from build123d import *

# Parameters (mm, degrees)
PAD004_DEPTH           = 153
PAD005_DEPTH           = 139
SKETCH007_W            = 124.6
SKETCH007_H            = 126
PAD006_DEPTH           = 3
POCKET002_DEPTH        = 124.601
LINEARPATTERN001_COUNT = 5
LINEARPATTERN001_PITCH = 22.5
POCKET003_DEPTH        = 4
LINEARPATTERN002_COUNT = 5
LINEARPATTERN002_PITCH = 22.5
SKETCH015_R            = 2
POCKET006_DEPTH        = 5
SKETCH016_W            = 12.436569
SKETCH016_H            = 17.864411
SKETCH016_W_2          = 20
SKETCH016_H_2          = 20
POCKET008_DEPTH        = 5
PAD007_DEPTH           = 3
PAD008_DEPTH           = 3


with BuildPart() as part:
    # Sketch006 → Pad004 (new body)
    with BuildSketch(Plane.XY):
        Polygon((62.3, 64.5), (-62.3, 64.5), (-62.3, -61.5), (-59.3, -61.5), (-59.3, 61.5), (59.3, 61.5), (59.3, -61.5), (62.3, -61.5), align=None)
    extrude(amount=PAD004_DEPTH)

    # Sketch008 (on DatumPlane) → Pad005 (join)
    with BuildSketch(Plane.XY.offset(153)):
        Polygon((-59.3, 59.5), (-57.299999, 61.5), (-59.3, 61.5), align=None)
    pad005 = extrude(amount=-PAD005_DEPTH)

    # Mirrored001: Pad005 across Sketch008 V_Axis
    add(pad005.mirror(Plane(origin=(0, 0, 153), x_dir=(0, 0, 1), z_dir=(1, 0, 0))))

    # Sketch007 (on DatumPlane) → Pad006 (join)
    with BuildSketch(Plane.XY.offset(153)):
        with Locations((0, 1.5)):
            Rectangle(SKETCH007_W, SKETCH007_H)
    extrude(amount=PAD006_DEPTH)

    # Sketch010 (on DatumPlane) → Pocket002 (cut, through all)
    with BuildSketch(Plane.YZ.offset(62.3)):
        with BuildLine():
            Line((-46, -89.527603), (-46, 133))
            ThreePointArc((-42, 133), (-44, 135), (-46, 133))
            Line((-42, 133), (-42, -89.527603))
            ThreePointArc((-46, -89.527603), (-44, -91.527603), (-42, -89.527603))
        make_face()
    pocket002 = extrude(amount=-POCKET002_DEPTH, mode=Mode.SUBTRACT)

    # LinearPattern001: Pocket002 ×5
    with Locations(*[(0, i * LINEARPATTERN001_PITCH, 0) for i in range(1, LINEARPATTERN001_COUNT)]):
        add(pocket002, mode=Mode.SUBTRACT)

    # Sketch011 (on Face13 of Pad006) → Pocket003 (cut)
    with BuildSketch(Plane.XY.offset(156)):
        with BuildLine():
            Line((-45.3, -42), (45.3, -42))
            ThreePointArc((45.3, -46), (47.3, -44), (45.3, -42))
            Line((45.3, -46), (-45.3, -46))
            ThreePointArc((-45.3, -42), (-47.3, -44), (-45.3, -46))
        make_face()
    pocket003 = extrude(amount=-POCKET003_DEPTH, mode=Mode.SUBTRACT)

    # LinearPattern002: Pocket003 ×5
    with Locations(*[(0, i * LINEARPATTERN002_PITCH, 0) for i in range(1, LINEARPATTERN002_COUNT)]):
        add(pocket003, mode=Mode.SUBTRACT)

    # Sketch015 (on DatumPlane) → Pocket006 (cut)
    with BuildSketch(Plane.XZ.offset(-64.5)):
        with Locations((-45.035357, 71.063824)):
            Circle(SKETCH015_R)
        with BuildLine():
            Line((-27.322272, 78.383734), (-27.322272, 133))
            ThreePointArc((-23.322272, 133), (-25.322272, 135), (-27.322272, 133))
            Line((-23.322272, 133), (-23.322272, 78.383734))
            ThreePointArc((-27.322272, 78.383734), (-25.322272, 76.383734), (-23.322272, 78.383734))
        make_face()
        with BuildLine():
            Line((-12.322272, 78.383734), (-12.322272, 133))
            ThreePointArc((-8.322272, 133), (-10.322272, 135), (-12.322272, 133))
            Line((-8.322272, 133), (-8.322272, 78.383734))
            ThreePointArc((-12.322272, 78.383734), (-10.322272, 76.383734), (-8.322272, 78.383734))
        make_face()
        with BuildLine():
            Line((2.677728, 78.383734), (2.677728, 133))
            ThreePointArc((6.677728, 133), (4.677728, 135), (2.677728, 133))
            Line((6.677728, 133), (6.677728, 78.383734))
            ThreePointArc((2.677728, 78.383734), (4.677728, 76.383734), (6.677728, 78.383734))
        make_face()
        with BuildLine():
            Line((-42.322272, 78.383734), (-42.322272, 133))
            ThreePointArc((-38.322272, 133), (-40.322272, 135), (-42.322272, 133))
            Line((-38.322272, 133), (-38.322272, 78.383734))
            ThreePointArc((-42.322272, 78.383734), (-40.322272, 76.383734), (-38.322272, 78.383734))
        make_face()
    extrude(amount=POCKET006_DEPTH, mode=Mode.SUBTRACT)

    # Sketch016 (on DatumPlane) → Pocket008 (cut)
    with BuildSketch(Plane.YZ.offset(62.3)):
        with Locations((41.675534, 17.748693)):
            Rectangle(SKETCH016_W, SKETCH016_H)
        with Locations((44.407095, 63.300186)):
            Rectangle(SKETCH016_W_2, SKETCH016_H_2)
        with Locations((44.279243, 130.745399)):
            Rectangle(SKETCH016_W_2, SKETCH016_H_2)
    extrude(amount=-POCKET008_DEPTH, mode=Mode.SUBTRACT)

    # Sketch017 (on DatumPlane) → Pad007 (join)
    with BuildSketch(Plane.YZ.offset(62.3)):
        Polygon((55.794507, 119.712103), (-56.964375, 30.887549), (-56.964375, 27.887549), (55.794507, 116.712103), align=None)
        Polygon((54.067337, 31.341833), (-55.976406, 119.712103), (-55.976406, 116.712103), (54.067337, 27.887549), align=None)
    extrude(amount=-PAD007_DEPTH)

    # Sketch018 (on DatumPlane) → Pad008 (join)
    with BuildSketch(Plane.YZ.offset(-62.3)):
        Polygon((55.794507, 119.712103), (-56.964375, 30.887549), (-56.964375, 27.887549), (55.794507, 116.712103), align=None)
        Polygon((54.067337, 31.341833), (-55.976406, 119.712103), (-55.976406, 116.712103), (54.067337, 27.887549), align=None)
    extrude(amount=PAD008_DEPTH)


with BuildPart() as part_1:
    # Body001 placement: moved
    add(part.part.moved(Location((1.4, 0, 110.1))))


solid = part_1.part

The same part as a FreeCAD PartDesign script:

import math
import FreeCAD as App
import Part
import Sketcher

V = App.Vector
Q = App.Units.Quantity

doc = App.newDocument("Part")
body = doc.addObject("PartDesign::Body", "Body")

sketch1 = doc.addObject("Sketcher::SketchObject", "Sketch")
body.addObject(sketch1)
sketch1.AttachmentSupport = (doc.XY_Plane, [""])
sketch1.MapMode = "FlatFace"
sketch1.addGeometry(Part.LineSegment(V(62.3, 64.5, 0), V(-62.3, 64.5, 0)), False)
sketch1.addGeometry(Part.LineSegment(V(-62.3, 64.5, 0), V(-62.3, -61.5, 0)), False)
sketch1.addGeometry(Part.LineSegment(V(-62.3, -61.5, 0), V(-59.3, -61.5, 0)), False)
sketch1.addGeometry(Part.LineSegment(V(-59.3, -61.5, 0), V(-59.3, 61.5, 0)), False)
sketch1.addGeometry(Part.LineSegment(V(-59.3, 61.5, 0), V(59.3, 61.5, 0)), False)
sketch1.addGeometry(Part.LineSegment(V(59.3, 61.5, 0), V(59.3, -61.5, 0)), False)
sketch1.addGeometry(Part.LineSegment(V(59.3, -61.5, 0), V(62.3, -61.5, 0)), False)
sketch1.addGeometry(Part.LineSegment(V(62.3, -61.5, 0), V(62.3, 64.5, 0)), False)
sketch1.addConstraint(Sketcher.Constraint("Coincident", 0, 2, 1, 1))
sketch1.addConstraint(Sketcher.Constraint("Coincident", 1, 2, 2, 1))
sketch1.addConstraint(Sketcher.Constraint("Coincident", 2, 2, 3, 1))
sketch1.addConstraint(Sketcher.Constraint("Coincident", 3, 2, 4, 1))
sketch1.addConstraint(Sketcher.Constraint("Coincident", 4, 2, 5, 1))
sketch1.addConstraint(Sketcher.Constraint("Coincident", 5, 2, 6, 1))
sketch1.addConstraint(Sketcher.Constraint("Coincident", 6, 2, 7, 1))
sketch1.addConstraint(Sketcher.Constraint("Coincident", 7, 2, 0, 1))
sketch1.addConstraint(Sketcher.Constraint("Horizontal", 0))
sketch1.addConstraint(Sketcher.Constraint("Vertical", 1))
sketch1.addConstraint(Sketcher.Constraint("Horizontal", 2))
sketch1.addConstraint(Sketcher.Constraint("Vertical", 3))
sketch1.addConstraint(Sketcher.Constraint("Horizontal", 4))
sketch1.addConstraint(Sketcher.Constraint("Vertical", 5))
sketch1.addConstraint(Sketcher.Constraint("Horizontal", 6))
sketch1.addConstraint(Sketcher.Constraint("Vertical", 7))
sketch1.addConstraint(Sketcher.Constraint("Symmetric", 2, 2, 4, 2, -1, 1))
sketch1.addConstraint(Sketcher.Constraint("Symmetric", 1, 2, 6, 2, -2))
sketch1.addConstraint(Sketcher.Constraint("DistanceX", 2, 1, 2, 2, Q("3 mm")))
sketch1.addConstraint(Sketcher.Constraint("DistanceY", 1, 2, 1, 1, Q("126 mm")))
sketch1.addConstraint(Sketcher.Constraint("DistanceY", 3, 1, 3, 2, Q("123 mm")))
sketch1.addConstraint(Sketcher.Constraint("DistanceX", 0, 2, 0, 1, Q("124.6 mm")))
pad1 = doc.addObject("PartDesign::Pad", "Pad")
body.addObject(pad1)
pad1.Profile = sketch1
pad1.Length = 153

sketch2 = doc.addObject("Sketcher::SketchObject", "Sketch001")
body.addObject(sketch2)
sketch2.AttachmentSupport = (doc.XY_Plane, [""])
sketch2.MapMode = "FlatFace"
sketch2.AttachmentOffset = App.Placement(V(0, 0, 153), App.Rotation())
sketch2.addGeometry(Part.LineSegment(V(-59.3, 59.5, 0), V(-57.299999, 61.5, 0)), False)
sketch2.addGeometry(Part.LineSegment(V(-57.299999, 61.5, 0), V(-59.3, 61.5, 0)), False)
sketch2.addGeometry(Part.LineSegment(V(-59.3, 61.5, 0), V(-59.3, 59.5, 0)), False)
sketch2.addConstraint(Sketcher.Constraint("Coincident", 0, 2, 1, 1))
sketch2.addConstraint(Sketcher.Constraint("Coincident", 1, 2, 2, 1))
sketch2.addConstraint(Sketcher.Constraint("Coincident", 2, 2, 0, 1))
sketch2.addConstraint(Sketcher.Constraint("Horizontal", 1))
sketch2.addConstraint(Sketcher.Constraint("Vertical", 2))
sketch2.addConstraint(Sketcher.Constraint("Equal", 1, 2))
sketch2.addConstraint(Sketcher.Constraint("DistanceX", 1, 2, 1, 1, Q("2.000001 mm")))
sketch2.addConstraint(Sketcher.Constraint("DistanceX", 0, 2, -1, 1, Q("57.299999 mm")))
sketch2.addConstraint(Sketcher.Constraint("DistanceY", -1, 1, 0, 2, Q("61.5 mm")))
pad2 = doc.addObject("PartDesign::Pad", "Pad001")
body.addObject(pad2)
pad2.Profile = sketch2
pad2.Length = 139
pad2.Reversed = True
doc.recompute()

mirrored = doc.addObject("PartDesign::Mirrored", "Mirrored")
body.addObject(mirrored)
mirrored.Originals = [pad2]
mirrored.MirrorPlane = (doc.YZ_Plane, [""])
body.Tip = mirrored

sketch3 = doc.addObject("Sketcher::SketchObject", "Sketch002")
body.addObject(sketch3)
sketch3.AttachmentSupport = (doc.XY_Plane, [""])
sketch3.MapMode = "FlatFace"
sketch3.AttachmentOffset = App.Placement(V(0, 0, 153), App.Rotation())
sketch3.addGeometry(Part.LineSegment(V(-62.3, 64.5, 0), V(-62.3, -61.5, 0)), False)
sketch3.addGeometry(Part.LineSegment(V(-62.3, -61.5, 0), V(62.3, -61.5, 0)), False)
sketch3.addGeometry(Part.LineSegment(V(62.3, -61.5, 0), V(62.3, 64.5, 0)), False)
sketch3.addGeometry(Part.LineSegment(V(62.3, 64.5, 0), V(-62.3, 64.5, 0)), False)
sketch3.addConstraint(Sketcher.Constraint("Coincident", 0, 2, 1, 1))
sketch3.addConstraint(Sketcher.Constraint("Coincident", 1, 2, 2, 1))
sketch3.addConstraint(Sketcher.Constraint("Coincident", 2, 2, 3, 1))
sketch3.addConstraint(Sketcher.Constraint("Coincident", 3, 2, 0, 1))
sketch3.addConstraint(Sketcher.Constraint("Vertical", 0))
sketch3.addConstraint(Sketcher.Constraint("Horizontal", 1))
sketch3.addConstraint(Sketcher.Constraint("Vertical", 2))
sketch3.addConstraint(Sketcher.Constraint("Horizontal", 3))
sketch3.addConstraint(Sketcher.Constraint("DistanceY", 0, 2, 0, 1, Q("126 mm")))
sketch3.addConstraint(Sketcher.Constraint("DistanceX", 1, 1, 1, 2, Q("124.6 mm")))
sketch3.addConstraint(Sketcher.Constraint("DistanceX", 0, 2, -1, 1, Q("62.3 mm")))
sketch3.addConstraint(Sketcher.Constraint("DistanceY", 0, 2, -1, 1, Q("61.5 mm")))
pad3 = doc.addObject("PartDesign::Pad", "Pad002")
body.addObject(pad3)
pad3.Profile = sketch3
pad3.Length = 3

sketch4 = doc.addObject("Sketcher::SketchObject", "Sketch003")
body.addObject(sketch4)
sketch4.AttachmentSupport = (doc.YZ_Plane, [""])
sketch4.MapMode = "FlatFace"
sketch4.AttachmentOffset = App.Placement(V(0, 0, 62.3), App.Rotation())
sketch4.addGeometry(Part.LineSegment(V(-46, 133, 0), V(-46, -89.527603, 0)), False)
sketch4.addGeometry(Part.ArcOfCircle(Part.Circle(V(-44, -89.527603, 0), V(0, 0, 1), 2), math.radians(180), math.radians(360)), False)
sketch4.addGeometry(Part.LineSegment(V(-42, -89.527603, 0), V(-42, 133, 0)), False)
sketch4.addGeometry(Part.ArcOfCircle(Part.Circle(V(-44, 133, 0), V(0, 0, 1), 2), math.radians(0), math.radians(180)), False)
sketch4.addConstraint(Sketcher.Constraint("Tangent", 0, 2, 1, 1))
sketch4.addConstraint(Sketcher.Constraint("Tangent", 1, 2, 2, 1))
sketch4.addConstraint(Sketcher.Constraint("Tangent", 2, 2, 3, 1))
sketch4.addConstraint(Sketcher.Constraint("Tangent", 3, 2, 0, 1))
sketch4.addConstraint(Sketcher.Constraint("Vertical", 0))
sketch4.addConstraint(Sketcher.Constraint("Vertical", 2))
sketch4.addConstraint(Sketcher.Constraint("Radius", 1, Q("2 mm")))
sketch4.addConstraint(Sketcher.Constraint("DistanceX", 1, 3, -1, 1, Q("44 mm")))
sketch4.addConstraint(Sketcher.Constraint("DistanceY", -1, 1, 3, 3, Q("133 mm")))
sketch4.addConstraint(Sketcher.Constraint("DistanceY", 0, 2, 0, 1, Q("222.527603 mm")))
pocket1 = doc.addObject("PartDesign::Pocket", "Pocket")
body.addObject(pocket1)
pocket1.Profile = sketch4
pocket1.Type = "ThroughAll"
doc.recompute()

linearpattern = doc.addObject("PartDesign::LinearPattern", "LinearPattern")
body.addObject(linearpattern)
linearpattern.Originals = [pocket1]
linearpattern.Direction = (doc.Y_Axis, [""])
linearpattern.Mode = "offset"
linearpattern.Offset = 22.5
linearpattern.Occurrences = 5
body.Tip = linearpattern

sketch5 = doc.addObject("Sketcher::SketchObject", "Sketch004")
body.addObject(sketch5)
sketch5.AttachmentSupport = (doc.XY_Plane, [""])
sketch5.MapMode = "FlatFace"
sketch5.AttachmentOffset = App.Placement(V(0, 0, 156), App.Rotation())
sketch5.addGeometry(Part.LineSegment(V(45.3, -42, 0), V(-45.3, -42, 0)), False)
sketch5.addGeometry(Part.ArcOfCircle(Part.Circle(V(-45.3, -44, 0), V(0, 0, 1), 2), math.radians(90), math.radians(270)), False)
sketch5.addGeometry(Part.LineSegment(V(-45.3, -46, 0), V(45.3, -46, 0)), False)
sketch5.addGeometry(Part.ArcOfCircle(Part.Circle(V(45.3, -44, 0), V(0, 0, 1), 2), math.radians(-90), math.radians(90)), False)
sketch5.addConstraint(Sketcher.Constraint("Tangent", 0, 2, 1, 1))
sketch5.addConstraint(Sketcher.Constraint("Tangent", 1, 2, 2, 1))
sketch5.addConstraint(Sketcher.Constraint("Tangent", 2, 2, 3, 1))
sketch5.addConstraint(Sketcher.Constraint("Tangent", 3, 2, 0, 1))
sketch5.addConstraint(Sketcher.Constraint("Horizontal", 0))
sketch5.addConstraint(Sketcher.Constraint("Horizontal", 2))
sketch5.addConstraint(Sketcher.Constraint("Radius", 1, Q("2 mm")))
sketch5.addConstraint(Sketcher.Constraint("DistanceX", 0, 2, 0, 1, Q("90.6 mm")))
sketch5.addConstraint(Sketcher.Constraint("DistanceY", 1, 3, -1, 1, Q("44 mm")))
sketch5.addConstraint(Sketcher.Constraint("DistanceX", 1, 3, -1, 1, Q("45.3 mm")))
pocket2 = doc.addObject("PartDesign::Pocket", "Pocket001")
body.addObject(pocket2)
pocket2.Profile = sketch5
pocket2.Length = 4
doc.recompute()

linearpattern2 = doc.addObject("PartDesign::LinearPattern", "LinearPattern001")
body.addObject(linearpattern2)
linearpattern2.Originals = [pocket2]
linearpattern2.Direction = (doc.Y_Axis, [""])
linearpattern2.Mode = "offset"
linearpattern2.Offset = 22.5
linearpattern2.Occurrences = 5
body.Tip = linearpattern2

sketch6 = doc.addObject("Sketcher::SketchObject", "Sketch005")
body.addObject(sketch6)
sketch6.AttachmentSupport = (doc.XZ_Plane, [""])
sketch6.MapMode = "FlatFace"
sketch6.AttachmentOffset = App.Placement(V(0, 0, -64.5), App.Rotation())
sketch6.addGeometry(Part.Circle(V(-45.035357, 71.063824, 0), V(0, 0, 1), 2), False)
sketch6.addGeometry(Part.LineSegment(V(-27.322272, 133, 0), V(-27.322272, 78.383734, 0)), False)
sketch6.addGeometry(Part.ArcOfCircle(Part.Circle(V(-25.322272, 78.383734, 0), V(0, 0, 1), 2), math.radians(180), math.radians(360)), False)
sketch6.addGeometry(Part.LineSegment(V(-23.322272, 78.383734, 0), V(-23.322272, 133, 0)), False)
sketch6.addGeometry(Part.ArcOfCircle(Part.Circle(V(-25.322272, 133, 0), V(0, 0, 1), 2), math.radians(0), math.radians(180)), False)
sketch6.addGeometry(Part.LineSegment(V(-12.322272, 133, 0), V(-12.322272, 78.383734, 0)), False)
sketch6.addGeometry(Part.ArcOfCircle(Part.Circle(V(-10.322272, 78.383734, 0), V(0, 0, 1), 2), math.radians(180), math.radians(360)), False)
sketch6.addGeometry(Part.LineSegment(V(-8.322272, 78.383734, 0), V(-8.322272, 133, 0)), False)
sketch6.addGeometry(Part.ArcOfCircle(Part.Circle(V(-10.322272, 133, 0), V(0, 0, 1), 2), math.radians(0), math.radians(180)), False)
sketch6.addGeometry(Part.LineSegment(V(2.677728, 133, 0), V(2.677728, 78.383734, 0)), False)
sketch6.addGeometry(Part.ArcOfCircle(Part.Circle(V(4.677728, 78.383734, 0), V(0, 0, 1), 2), math.radians(180), math.radians(360)), False)
sketch6.addGeometry(Part.LineSegment(V(6.677728, 78.383734, 0), V(6.677728, 133, 0)), False)
sketch6.addGeometry(Part.ArcOfCircle(Part.Circle(V(4.677728, 133, 0), V(0, 0, 1), 2), math.radians(0), math.radians(180)), False)
sketch6.addGeometry(Part.LineSegment(V(-42.322272, 133, 0), V(-42.322272, 78.383734, 0)), False)
sketch6.addGeometry(Part.ArcOfCircle(Part.Circle(V(-40.322272, 78.383734, 0), V(0, 0, 1), 2), math.radians(180), math.radians(360)), False)
sketch6.addGeometry(Part.LineSegment(V(-38.322272, 78.383734, 0), V(-38.322272, 133, 0)), False)
sketch6.addGeometry(Part.ArcOfCircle(Part.Circle(V(-40.322272, 133, 0), V(0, 0, 1), 2), math.radians(0), math.radians(180)), False)
sketch6.addConstraint(Sketcher.Constraint("Tangent", 1, 2, 2, 1))
sketch6.addConstraint(Sketcher.Constraint("Tangent", 2, 2, 3, 1))
sketch6.addConstraint(Sketcher.Constraint("Tangent", 3, 2, 4, 1))
sketch6.addConstraint(Sketcher.Constraint("Tangent", 4, 2, 1, 1))
sketch6.addConstraint(Sketcher.Constraint("Tangent", 5, 2, 6, 1))
sketch6.addConstraint(Sketcher.Constraint("Tangent", 6, 2, 7, 1))
sketch6.addConstraint(Sketcher.Constraint("Tangent", 7, 2, 8, 1))
sketch6.addConstraint(Sketcher.Constraint("Tangent", 8, 2, 5, 1))
sketch6.addConstraint(Sketcher.Constraint("Tangent", 9, 2, 10, 1))
sketch6.addConstraint(Sketcher.Constraint("Tangent", 10, 2, 11, 1))
sketch6.addConstraint(Sketcher.Constraint("Tangent", 11, 2, 12, 1))
sketch6.addConstraint(Sketcher.Constraint("Tangent", 12, 2, 9, 1))
sketch6.addConstraint(Sketcher.Constraint("Tangent", 13, 2, 14, 1))
sketch6.addConstraint(Sketcher.Constraint("Tangent", 14, 2, 15, 1))
sketch6.addConstraint(Sketcher.Constraint("Tangent", 15, 2, 16, 1))
sketch6.addConstraint(Sketcher.Constraint("Tangent", 16, 2, 13, 1))
sketch6.addConstraint(Sketcher.Constraint("Vertical", 1))
sketch6.addConstraint(Sketcher.Constraint("Vertical", 3))
sketch6.addConstraint(Sketcher.Constraint("Vertical", 5))
sketch6.addConstraint(Sketcher.Constraint("Vertical", 7))
sketch6.addConstraint(Sketcher.Constraint("Vertical", 9))
sketch6.addConstraint(Sketcher.Constraint("Vertical", 11))
sketch6.addConstraint(Sketcher.Constraint("Vertical", 13))
sketch6.addConstraint(Sketcher.Constraint("Vertical", 15))
sketch6.addConstraint(Sketcher.Constraint("Equal", 0, 2))
sketch6.addConstraint(Sketcher.Constraint("Equal", 4, 6))
sketch6.addConstraint(Sketcher.Constraint("Equal", 8, 10))
sketch6.addConstraint(Sketcher.Constraint("Equal", 12, 14))
sketch6.addConstraint(Sketcher.Constraint("Horizontal", 2, 3, 6, 3))
sketch6.addConstraint(Sketcher.Constraint("Horizontal", 4, 3, 8, 3))
sketch6.addConstraint(Sketcher.Constraint("Horizontal", 6, 3, 10, 3))
sketch6.addConstraint(Sketcher.Constraint("Horizontal", 8, 3, 12, 3))
sketch6.addConstraint(Sketcher.Constraint("Horizontal", 10, 3, 14, 3))
sketch6.addConstraint(Sketcher.Constraint("Horizontal", 12, 3, 16, 3))
sketch6.addConstraint(Sketcher.Constraint("Diameter", 0, Q("4 mm")))
sketch6.addConstraint(Sketcher.Constraint("DistanceY", -1, 1, 4, 3, Q("133 mm")))
sketch6.addConstraint(Sketcher.Constraint("DistanceX", 2, 3, 6, 3, Q("15 mm")))
sketch6.addConstraint(Sketcher.Constraint("DistanceX", 6, 3, 10, 3, Q("15 mm")))
sketch6.addConstraint(Sketcher.Constraint("DistanceX", 14, 3, 2, 3, Q("15 mm")))
sketch6.addConstraint(Sketcher.Constraint("DistanceY", 1, 2, 1, 1, Q("54.616266 mm")))
sketch6.addConstraint(Sketcher.Constraint("DistanceX", 14, 3, -1, 1, Q("40.322272 mm")))
sketch6.addConstraint(Sketcher.Constraint("DistanceY", 0, 3, 2, 3, Q("7.31991 mm")))
sketch6.addConstraint(Sketcher.Constraint("DistanceX", 0, 3, -1, 1, Q("45.035357 mm")))
pocket3 = doc.addObject("PartDesign::Pocket", "Pocket002")
body.addObject(pocket3)
pocket3.Profile = sketch6
pocket3.Length = 5
pocket3.Reversed = True

sketch7 = doc.addObject("Sketcher::SketchObject", "Sketch006")
body.addObject(sketch7)
sketch7.AttachmentSupport = (doc.YZ_Plane, [""])
sketch7.MapMode = "FlatFace"
sketch7.AttachmentOffset = App.Placement(V(0, 0, 62.3), App.Rotation())
sketch7.addGeometry(Part.LineSegment(V(35.45725, 26.680899, 0), V(35.45725, 8.816487, 0)), False)
sketch7.addGeometry(Part.LineSegment(V(35.45725, 8.816487, 0), V(47.893819, 8.816487, 0)), False)
sketch7.addGeometry(Part.LineSegment(V(47.893819, 8.816487, 0), V(47.893819, 26.680899, 0)), False)
sketch7.addGeometry(Part.LineSegment(V(47.893819, 26.680899, 0), V(35.45725, 26.680899, 0)), False)
sketch7.addGeometry(Part.LineSegment(V(34.407095, 73.300186, 0), V(34.407095, 53.300186, 0)), False)
sketch7.addGeometry(Part.LineSegment(V(34.407095, 53.300186, 0), V(54.407095, 53.300186, 0)), False)
sketch7.addGeometry(Part.LineSegment(V(54.407095, 53.300186, 0), V(54.407095, 73.300186, 0)), False)
sketch7.addGeometry(Part.LineSegment(V(54.407095, 73.300186, 0), V(34.407095, 73.300186, 0)), False)
sketch7.addGeometry(Part.LineSegment(V(34.279243, 140.745399, 0), V(34.279243, 120.745399, 0)), False)
sketch7.addGeometry(Part.LineSegment(V(34.279243, 120.745399, 0), V(54.279243, 120.745399, 0)), False)
sketch7.addGeometry(Part.LineSegment(V(54.279243, 120.745399, 0), V(54.279243, 140.745399, 0)), False)
sketch7.addGeometry(Part.LineSegment(V(54.279243, 140.745399, 0), V(34.279243, 140.745399, 0)), False)
sketch7.addConstraint(Sketcher.Constraint("Coincident", 0, 2, 1, 1))
sketch7.addConstraint(Sketcher.Constraint("Coincident", 1, 2, 2, 1))
sketch7.addConstraint(Sketcher.Constraint("Coincident", 2, 2, 3, 1))
sketch7.addConstraint(Sketcher.Constraint("Coincident", 3, 2, 0, 1))
sketch7.addConstraint(Sketcher.Constraint("Coincident", 4, 2, 5, 1))
sketch7.addConstraint(Sketcher.Constraint("Coincident", 5, 2, 6, 1))
sketch7.addConstraint(Sketcher.Constraint("Coincident", 6, 2, 7, 1))
sketch7.addConstraint(Sketcher.Constraint("Coincident", 7, 2, 4, 1))
sketch7.addConstraint(Sketcher.Constraint("Coincident", 8, 2, 9, 1))
sketch7.addConstraint(Sketcher.Constraint("Coincident", 9, 2, 10, 1))
sketch7.addConstraint(Sketcher.Constraint("Coincident", 10, 2, 11, 1))
sketch7.addConstraint(Sketcher.Constraint("Coincident", 11, 2, 8, 1))
sketch7.addConstraint(Sketcher.Constraint("Vertical", 0))
sketch7.addConstraint(Sketcher.Constraint("Horizontal", 1))
sketch7.addConstraint(Sketcher.Constraint("Vertical", 2))
sketch7.addConstraint(Sketcher.Constraint("Horizontal", 3))
sketch7.addConstraint(Sketcher.Constraint("Vertical", 4))
sketch7.addConstraint(Sketcher.Constraint("Horizontal", 5))
sketch7.addConstraint(Sketcher.Constraint("Vertical", 6))
sketch7.addConstraint(Sketcher.Constraint("Horizontal", 7))
sketch7.addConstraint(Sketcher.Constraint("Vertical", 8))
sketch7.addConstraint(Sketcher.Constraint("Horizontal", 9))
sketch7.addConstraint(Sketcher.Constraint("Vertical", 10))
sketch7.addConstraint(Sketcher.Constraint("Horizontal", 11))
sketch7.addConstraint(Sketcher.Constraint("Equal", 7, 9))
sketch7.addConstraint(Sketcher.Constraint("Equal", 11, 4))
sketch7.addConstraint(Sketcher.Constraint("Equal", 6, 8))
sketch7.addConstraint(Sketcher.Constraint("DistanceX", 5, 1, 5, 2, Q("20 mm")))
sketch7.addConstraint(Sketcher.Constraint("DistanceX", 1, 1, 1, 2, Q("12.436569 mm")))
sketch7.addConstraint(Sketcher.Constraint("DistanceY", 0, 2, 0, 1, Q("17.864411 mm")))
sketch7.addConstraint(Sketcher.Constraint("DistanceY", -1, 1, 2, 2, Q("26.680899 mm")))
sketch7.addConstraint(Sketcher.Constraint("DistanceY", -1, 1, 8, 2, Q("120.745399 mm")))
sketch7.addConstraint(Sketcher.Constraint("DistanceY", 0, 2, 4, 2, Q("44.483698 mm")))
sketch7.addConstraint(Sketcher.Constraint("DistanceX", -1, 1, 0, 2, Q("35.45725 mm")))
sketch7.addConstraint(Sketcher.Constraint("DistanceX", 8, 2, 7, 2, Q("0.127852 mm")))
sketch7.addConstraint(Sketcher.Constraint("DistanceX", -1, 1, 4, 2, Q("34.407095 mm")))
pocket4 = doc.addObject("PartDesign::Pocket", "Pocket003")
body.addObject(pocket4)
pocket4.Profile = sketch7
pocket4.Length = 5

sketch8 = doc.addObject("Sketcher::SketchObject", "Sketch007")
body.addObject(sketch8)
sketch8.AttachmentSupport = (doc.YZ_Plane, [""])
sketch8.MapMode = "FlatFace"
sketch8.AttachmentOffset = App.Placement(V(0, 0, 62.3), App.Rotation())
sketch8.addGeometry(Part.LineSegment(V(55.794507, 116.712103, 0), V(55.794507, 119.712103, 0)), False)
sketch8.addGeometry(Part.LineSegment(V(55.794507, 119.712103, 0), V(-0.628726, 75.265329, 0)), False)
sketch8.addGeometry(Part.LineSegment(V(-0.628726, 75.265329, 0), V(-55.976406, 119.712103, 0)), False)
sketch8.addGeometry(Part.LineSegment(V(-55.976406, 119.712103, 0), V(-55.976406, 116.712103, 0)), False)
sketch8.addGeometry(Part.LineSegment(V(-55.976406, 116.712103, 0), V(-2.652966, 73.670757, 0)), False)
sketch8.addGeometry(Part.LineSegment(V(-2.652966, 73.670757, 0), V(-56.964375, 30.887549, 0)), False)
sketch8.addGeometry(Part.LineSegment(V(-56.964375, 30.887549, 0), V(-56.964375, 27.887549, 0)), False)
sketch8.addGeometry(Part.LineSegment(V(-56.964375, 27.887549, 0), V(-0.771986, 72.152478, 0)), False)
sketch8.addGeometry(Part.LineSegment(V(-0.771986, 72.152478, 0), V(54.067337, 27.887549, 0)), False)
sketch8.addGeometry(Part.LineSegment(V(54.067337, 27.887549, 0), V(54.067337, 31.341833, 0)), False)
sketch8.addGeometry(Part.LineSegment(V(54.067337, 31.341833, 0), V(1.257134, 73.750895, 0)), False)
sketch8.addGeometry(Part.LineSegment(V(1.257134, 73.750895, 0), V(55.794507, 116.712103, 0)), False)
sketch8.addConstraint(Sketcher.Constraint("Coincident", 0, 2, 1, 1))
sketch8.addConstraint(Sketcher.Constraint("Coincident", 1, 2, 2, 1))
sketch8.addConstraint(Sketcher.Constraint("Coincident", 2, 2, 3, 1))
sketch8.addConstraint(Sketcher.Constraint("Coincident", 3, 2, 4, 1))
sketch8.addConstraint(Sketcher.Constraint("Coincident", 4, 2, 5, 1))
sketch8.addConstraint(Sketcher.Constraint("Coincident", 5, 2, 6, 1))
sketch8.addConstraint(Sketcher.Constraint("Coincident", 6, 2, 7, 1))
sketch8.addConstraint(Sketcher.Constraint("Coincident", 7, 2, 8, 1))
sketch8.addConstraint(Sketcher.Constraint("Coincident", 8, 2, 9, 1))
sketch8.addConstraint(Sketcher.Constraint("Coincident", 9, 2, 10, 1))
sketch8.addConstraint(Sketcher.Constraint("Coincident", 10, 2, 11, 1))
sketch8.addConstraint(Sketcher.Constraint("Coincident", 11, 2, 0, 1))
sketch8.addConstraint(Sketcher.Constraint("Vertical", 0))
sketch8.addConstraint(Sketcher.Constraint("Vertical", 3))
sketch8.addConstraint(Sketcher.Constraint("Vertical", 6))
sketch8.addConstraint(Sketcher.Constraint("Vertical", 9))
sketch8.addConstraint(Sketcher.Constraint("DistanceY", 0, 1, 0, 2, Q("3 mm")))
sketch8.addConstraint(Sketcher.Constraint("DistanceY", 3, 2, 3, 1, Q("3 mm")))
sketch8.addConstraint(Sketcher.Constraint("DistanceY", 6, 2, 6, 1, Q("3 mm")))
sketch8.addConstraint(Sketcher.Constraint("DistanceY", 3, 2, 0, 2, Q("3 mm")))
sketch8.addConstraint(Sketcher.Constraint("Distance", 5, Q("69.138499 mm")))
sketch8.addConstraint(Sketcher.Constraint("DistanceX", 4, 2, 10, 2, Q("3.9101 mm")))
sketch8.addConstraint(Sketcher.Constraint("Distance", 2, Q("70.985078 mm")))
sketch8.addConstraint(Sketcher.Constraint("Distance", 4, Q("68.526978 mm")))
sketch8.addConstraint(Sketcher.Constraint("Distance", 7, Q("71.532989 mm")))
sketch8.addConstraint(Sketcher.Constraint("Distance", 8, Q("70.475069 mm")))
sketch8.addConstraint(Sketcher.Constraint("Distance", 11, Q("69.426151 mm")))
sketch8.addConstraint(Sketcher.Constraint("DistanceY", 9, 1, 9, 2, Q("3.454284 mm")))
sketch8.addConstraint(Sketcher.Constraint("DistanceY", -1, 1, 1, 2, Q("75.265329 mm")))
sketch8.addConstraint(Sketcher.Constraint("DistanceY", -1, 1, 5, 2, Q("30.887549 mm")))
sketch8.addConstraint(Sketcher.Constraint("DistanceY", -1, 1, 8, 2, Q("27.887549 mm")))
sketch8.addConstraint(Sketcher.Constraint("DistanceX", 2, 2, 1, 2, Q("55.347679 mm")))
sketch8.addConstraint(Sketcher.Constraint("DistanceX", 4, 2, 1, 2, Q("2.024239 mm")))
sketch8.addConstraint(Sketcher.Constraint("DistanceX", 5, 2, 0, 2, Q("112.758882 mm")))
sketch8.addConstraint(Sketcher.Constraint("DistanceX", 4, 2, 7, 2, Q("1.880979 mm")))
sketch8.addConstraint(Sketcher.Constraint("DistanceX", -1, 1, 0, 2, Q("55.794507 mm")))
pad4 = doc.addObject("PartDesign::Pad", "Pad003")
body.addObject(pad4)
pad4.Profile = sketch8
pad4.Length = 3
pad4.Reversed = True

sketch9 = doc.addObject("Sketcher::SketchObject", "Sketch008")
body.addObject(sketch9)
sketch9.AttachmentSupport = (doc.YZ_Plane, [""])
sketch9.MapMode = "FlatFace"
sketch9.AttachmentOffset = App.Placement(V(0, 0, -62.3), App.Rotation())
sketch9.addGeometry(Part.LineSegment(V(55.794507, 116.712103, 0), V(55.794507, 119.712103, 0)), False)
sketch9.addGeometry(Part.LineSegment(V(55.794507, 119.712103, 0), V(-0.628726, 75.265329, 0)), False)
sketch9.addGeometry(Part.LineSegment(V(-0.628726, 75.265329, 0), V(-55.976406, 119.712103, 0)), False)
sketch9.addGeometry(Part.LineSegment(V(-55.976406, 119.712103, 0), V(-55.976406, 116.712103, 0)), False)
sketch9.addGeometry(Part.LineSegment(V(-55.976406, 116.712103, 0), V(-2.652966, 73.670757, 0)), False)
sketch9.addGeometry(Part.LineSegment(V(-2.652966, 73.670757, 0), V(-56.964375, 30.887549, 0)), False)
sketch9.addGeometry(Part.LineSegment(V(-56.964375, 30.887549, 0), V(-56.964375, 27.887549, 0)), False)
sketch9.addGeometry(Part.LineSegment(V(-56.964375, 27.887549, 0), V(-0.771986, 72.152478, 0)), False)
sketch9.addGeometry(Part.LineSegment(V(-0.771986, 72.152478, 0), V(54.067337, 27.887549, 0)), False)
sketch9.addGeometry(Part.LineSegment(V(54.067337, 27.887549, 0), V(54.067337, 31.341833, 0)), False)
sketch9.addGeometry(Part.LineSegment(V(54.067337, 31.341833, 0), V(1.257134, 73.750895, 0)), False)
sketch9.addGeometry(Part.LineSegment(V(1.257134, 73.750895, 0), V(55.794507, 116.712103, 0)), False)
sketch9.addConstraint(Sketcher.Constraint("Coincident", 0, 2, 1, 1))
sketch9.addConstraint(Sketcher.Constraint("Coincident", 1, 2, 2, 1))
sketch9.addConstraint(Sketcher.Constraint("Coincident", 2, 2, 3, 1))
sketch9.addConstraint(Sketcher.Constraint("Coincident", 3, 2, 4, 1))
sketch9.addConstraint(Sketcher.Constraint("Coincident", 4, 2, 5, 1))
sketch9.addConstraint(Sketcher.Constraint("Coincident", 5, 2, 6, 1))
sketch9.addConstraint(Sketcher.Constraint("Coincident", 6, 2, 7, 1))
sketch9.addConstraint(Sketcher.Constraint("Coincident", 7, 2, 8, 1))
sketch9.addConstraint(Sketcher.Constraint("Coincident", 8, 2, 9, 1))
sketch9.addConstraint(Sketcher.Constraint("Coincident", 9, 2, 10, 1))
sketch9.addConstraint(Sketcher.Constraint("Coincident", 10, 2, 11, 1))
sketch9.addConstraint(Sketcher.Constraint("Coincident", 11, 2, 0, 1))
sketch9.addConstraint(Sketcher.Constraint("Vertical", 0))
sketch9.addConstraint(Sketcher.Constraint("Vertical", 3))
sketch9.addConstraint(Sketcher.Constraint("Vertical", 6))
sketch9.addConstraint(Sketcher.Constraint("Vertical", 9))
sketch9.addConstraint(Sketcher.Constraint("DistanceY", 0, 1, 0, 2, Q("3 mm")))
sketch9.addConstraint(Sketcher.Constraint("DistanceY", 3, 2, 3, 1, Q("3 mm")))
sketch9.addConstraint(Sketcher.Constraint("DistanceY", 6, 2, 6, 1, Q("3 mm")))
sketch9.addConstraint(Sketcher.Constraint("DistanceY", 3, 2, 0, 2, Q("3 mm")))
sketch9.addConstraint(Sketcher.Constraint("Distance", 5, Q("69.138499 mm")))
sketch9.addConstraint(Sketcher.Constraint("DistanceX", 4, 2, 10, 2, Q("3.9101 mm")))
sketch9.addConstraint(Sketcher.Constraint("Distance", 2, Q("70.985078 mm")))
sketch9.addConstraint(Sketcher.Constraint("Distance", 4, Q("68.526978 mm")))
sketch9.addConstraint(Sketcher.Constraint("Distance", 7, Q("71.532989 mm")))
sketch9.addConstraint(Sketcher.Constraint("Distance", 8, Q("70.475069 mm")))
sketch9.addConstraint(Sketcher.Constraint("Distance", 11, Q("69.426151 mm")))
sketch9.addConstraint(Sketcher.Constraint("DistanceY", 9, 1, 9, 2, Q("3.454284 mm")))
sketch9.addConstraint(Sketcher.Constraint("DistanceY", -1, 1, 1, 2, Q("75.265329 mm")))
sketch9.addConstraint(Sketcher.Constraint("DistanceY", -1, 1, 5, 2, Q("30.887549 mm")))
sketch9.addConstraint(Sketcher.Constraint("DistanceY", -1, 1, 8, 2, Q("27.887549 mm")))
sketch9.addConstraint(Sketcher.Constraint("DistanceX", 2, 2, 1, 2, Q("55.347679 mm")))
sketch9.addConstraint(Sketcher.Constraint("DistanceX", 4, 2, 1, 2, Q("2.024239 mm")))
sketch9.addConstraint(Sketcher.Constraint("DistanceX", 5, 2, 0, 2, Q("112.758882 mm")))
sketch9.addConstraint(Sketcher.Constraint("DistanceX", 4, 2, 7, 2, Q("1.880979 mm")))
sketch9.addConstraint(Sketcher.Constraint("DistanceX", -1, 1, 0, 2, Q("55.794507 mm")))
pad5 = doc.addObject("PartDesign::Pad", "Pad004")
body.addObject(pad5)
pad5.Profile = sketch9
pad5.Length = 3
body2 = doc.addObject("PartDesign::Body", "Body001")
doc.recompute()

body.Placement = App.Placement(V(1.4, 0, 110.1), App.Rotation(V(0, 0, 1), 0))
boolean = doc.addObject("PartDesign::Boolean", "Boolean")
body2.addObject(boolean)
boolean.Type = "Fuse"
boolean.addObjects([body])

doc.recompute()
